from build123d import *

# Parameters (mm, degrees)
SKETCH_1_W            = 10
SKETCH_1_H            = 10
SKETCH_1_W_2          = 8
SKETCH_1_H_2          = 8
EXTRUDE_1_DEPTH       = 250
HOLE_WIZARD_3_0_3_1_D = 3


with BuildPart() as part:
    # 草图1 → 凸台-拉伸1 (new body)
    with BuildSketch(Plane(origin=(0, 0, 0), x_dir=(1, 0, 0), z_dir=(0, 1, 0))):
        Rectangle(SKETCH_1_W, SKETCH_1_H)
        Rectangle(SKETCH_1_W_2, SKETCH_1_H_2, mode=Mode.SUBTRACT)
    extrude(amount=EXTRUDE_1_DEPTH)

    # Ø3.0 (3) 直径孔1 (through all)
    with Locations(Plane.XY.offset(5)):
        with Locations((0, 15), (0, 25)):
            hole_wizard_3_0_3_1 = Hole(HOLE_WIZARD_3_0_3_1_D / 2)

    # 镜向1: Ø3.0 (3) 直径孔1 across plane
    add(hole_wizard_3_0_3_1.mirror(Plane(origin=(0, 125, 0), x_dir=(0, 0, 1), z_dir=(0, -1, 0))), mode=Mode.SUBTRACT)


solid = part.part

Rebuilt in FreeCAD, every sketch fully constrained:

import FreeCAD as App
import Part
import Sketcher

V = App.Vector


def add_polygon(sketch, points):
    """Adds a closed chain of lines whose ends are joined by coincident constraints."""
    first, n = sketch.GeometryCount, len(points)
    for a, b in zip(points, points[1:] + points[:1]):
        sketch.addGeometry(Part.LineSegment(App.Vector(*a, 0), App.Vector(*b, 0)), False)
    for i in range(n):
        sketch.addConstraint(Sketcher.Constraint("Coincident", first + i, 2, first + (i + 1) % n, 1))

doc = App.newDocument("Part")
body = doc.addObject("PartDesign::Body", "Body")

# Sketch on XZ plane
sketch1 = body.newObject("Sketcher::SketchObject", "Sketch")
sketch1.AttachmentSupport = (doc.getObject("XZ_Plane"), [""])
sketch1.MapMode = "FlatFace"
add_polygon(sketch1, [(-5, -5), (-5, 5), (5, 5), (5, -5)])  # lines 0-3
add_polygon(sketch1, [(4, 4), (-4, 4), (-4, -4), (4, -4)])  # lines 4-7
sketch1.addConstraint([
    Sketcher.Constraint("Vertical", 0),
    Sketcher.Constraint("Horizontal", 1),
    Sketcher.Constraint("Vertical", 2),
    Sketcher.Constraint("Horizontal", 3),
    Sketcher.Constraint("Horizontal", 4),
    Sketcher.Constraint("Vertical", 5),
    Sketcher.Constraint("Horizontal", 6),
    Sketcher.Constraint("Vertical", 7),
    Sketcher.Constraint("Symmetric", 0, 2, 2, 2, -1, 1),
    Sketcher.Constraint("Symmetric", 4, 2, 6, 2, -1, 1),
    Sketcher.Constraint("Equal", 3, 0),
    Sketcher.Constraint("Equal", 6, 5),
    Sketcher.Constraint("DistanceX", 1, 1, 1, 2, 10.0),
    Sketcher.Constraint("DistanceX", 4, 2, 4, 1, 8.0),
])
pad1 = body.newObject("PartDesign::Pad", "Pad")
pad1.Profile = sketch1
pad1.Length = 250
pad1.Reversed = True

# Sketch on XY plane
sketch2 = body.newObject("Sketcher::SketchObject", "Sketch001")
sketch2.AttachmentSupport = (doc.getObject("XY_Plane"), [""])
sketch2.MapMode = "FlatFace"
sketch2.AttachmentOffset = App.Placement(V(0, 0, 5), App.Rotation())
sketch2.addGeometry([
    Part.Circle(V(0, 15, 0), V(0, 0, 1), 1.5),
    Part.Circle(V(0, 25, 0), V(0, 0, 1), 1.5),
], False)
sketch2.addConstraint([
    Sketcher.Constraint("Equal", 0, 1),
    Sketcher.Constraint("PointOnObject", 0, 3, -2),
    Sketcher.Constraint("PointOnObject", 1, 3, -2),
    Sketcher.Constraint("Diameter", 0, 3.0),
    Sketcher.Constraint("DistanceY", -1, 1, 0, 3, 15.0),
    Sketcher.Constraint("DistanceY", -1, 1, 1, 3, 25.0),
])
doc.recompute()
hole = body.newObject("PartDesign::Hole", "Hole")
hole.Profile = sketch2
hole.ThreadType = "None"
hole.Diameter = 3
hole.DepthType = "ThroughAll"
doc.recompute()

datumplane = body.newObject("PartDesign::Plane", "DatumPlane")
datumplane.AttachmentSupport = (doc.getObject("XZ_Plane"), [""])
datumplane.MapMode = "FlatFace"
datumplane.AttachmentOffset = App.Placement(V(0, 0, -125), App.Rotation())
mirrored = body.newObject("PartDesign::Mirrored", "Mirrored")
mirrored.Originals = [hole]
mirrored.MirrorPlane = (datumplane, [""])
body.Tip = mirrored

doc.recompute()
